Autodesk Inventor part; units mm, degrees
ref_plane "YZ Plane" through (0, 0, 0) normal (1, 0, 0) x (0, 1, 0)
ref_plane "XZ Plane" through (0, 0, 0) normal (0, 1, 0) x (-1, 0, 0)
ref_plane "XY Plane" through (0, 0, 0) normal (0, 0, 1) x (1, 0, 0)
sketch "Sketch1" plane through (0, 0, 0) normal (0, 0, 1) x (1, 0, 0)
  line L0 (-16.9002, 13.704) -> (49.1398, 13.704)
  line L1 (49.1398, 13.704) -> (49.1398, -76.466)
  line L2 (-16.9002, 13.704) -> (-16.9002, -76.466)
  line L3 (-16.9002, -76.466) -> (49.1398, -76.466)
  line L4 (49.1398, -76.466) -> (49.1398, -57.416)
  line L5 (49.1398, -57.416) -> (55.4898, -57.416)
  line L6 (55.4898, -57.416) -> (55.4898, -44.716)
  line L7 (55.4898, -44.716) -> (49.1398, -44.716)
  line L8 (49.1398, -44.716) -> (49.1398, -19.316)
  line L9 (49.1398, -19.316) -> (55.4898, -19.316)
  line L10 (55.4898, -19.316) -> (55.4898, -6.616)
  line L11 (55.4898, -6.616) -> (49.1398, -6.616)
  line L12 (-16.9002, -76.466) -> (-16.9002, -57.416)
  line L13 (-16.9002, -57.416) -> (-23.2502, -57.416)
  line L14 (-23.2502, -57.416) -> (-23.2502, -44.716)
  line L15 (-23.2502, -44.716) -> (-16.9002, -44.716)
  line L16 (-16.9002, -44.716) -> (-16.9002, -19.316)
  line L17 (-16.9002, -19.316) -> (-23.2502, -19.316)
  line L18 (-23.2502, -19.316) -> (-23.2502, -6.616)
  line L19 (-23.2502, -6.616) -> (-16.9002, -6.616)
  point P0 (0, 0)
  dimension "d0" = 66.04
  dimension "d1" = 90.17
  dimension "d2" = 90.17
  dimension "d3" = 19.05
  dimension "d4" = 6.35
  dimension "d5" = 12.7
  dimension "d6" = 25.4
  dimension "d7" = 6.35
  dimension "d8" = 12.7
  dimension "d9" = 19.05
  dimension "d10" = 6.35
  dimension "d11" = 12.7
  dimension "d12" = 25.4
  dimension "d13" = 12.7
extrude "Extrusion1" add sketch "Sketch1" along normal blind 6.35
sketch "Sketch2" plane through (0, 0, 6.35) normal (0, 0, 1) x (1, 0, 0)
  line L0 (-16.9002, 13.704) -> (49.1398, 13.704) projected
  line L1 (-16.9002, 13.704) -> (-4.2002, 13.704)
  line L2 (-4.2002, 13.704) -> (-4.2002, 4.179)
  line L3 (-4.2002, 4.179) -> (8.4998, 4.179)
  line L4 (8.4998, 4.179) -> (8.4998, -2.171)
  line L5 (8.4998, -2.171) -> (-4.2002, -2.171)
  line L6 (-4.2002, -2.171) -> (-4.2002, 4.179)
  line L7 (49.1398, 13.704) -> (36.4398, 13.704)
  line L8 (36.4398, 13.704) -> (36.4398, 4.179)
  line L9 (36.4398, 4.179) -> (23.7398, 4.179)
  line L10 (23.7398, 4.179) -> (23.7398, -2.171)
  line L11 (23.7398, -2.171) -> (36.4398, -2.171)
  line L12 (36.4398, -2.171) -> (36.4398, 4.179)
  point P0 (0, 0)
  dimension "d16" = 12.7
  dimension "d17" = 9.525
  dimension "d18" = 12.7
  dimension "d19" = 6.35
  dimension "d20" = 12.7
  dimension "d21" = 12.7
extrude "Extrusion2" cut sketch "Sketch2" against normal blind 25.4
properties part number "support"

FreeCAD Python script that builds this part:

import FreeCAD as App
import Part
import Sketcher
from FreeCAD import Vector
Q = App.Units.Quantity

doc = App.newDocument("Part")
body = doc.addObject("PartDesign::Body", "Body")

# Sketch on XY plane
sketch1 = doc.addObject("Sketcher::SketchObject", "Sketch")
body.addObject(sketch1)
sketch1.AttachmentSupport = (doc.XY_Plane, [""])
sketch1.MapMode = "FlatFace"
sketch1.addGeometry([
    Part.LineSegment(Vector(49.1398, 13.704, 0), Vector(-16.9002, 13.704, 0)),  # 0
    Part.LineSegment(Vector(-16.9002, 13.704, 0), Vector(-16.9002, -6.616, 0)),  # 1
    Part.LineSegment(Vector(-16.9002, -6.616, 0), Vector(-23.2502, -6.616, 0)),  # 2
    Part.LineSegment(Vector(-23.2502, -6.616, 0), Vector(-23.2502, -19.316, 0)),  # 3
    Part.LineSegment(Vector(-23.2502, -19.316, 0), Vector(-16.9002, -19.316, 0)),  # 4
    Part.LineSegment(Vector(-16.9002, -19.316, 0), Vector(-16.9002, -44.716, 0)),  # 5
    Part.LineSegment(Vector(-16.9002, -44.716, 0), Vector(-23.2502, -44.716, 0)),  # 6
    Part.LineSegment(Vector(-23.2502, -44.716, 0), Vector(-23.2502, -57.416, 0)),  # 7
    Part.LineSegment(Vector(-23.2502, -57.416, 0), Vector(-16.9002, -57.416, 0)),  # 8
    Part.LineSegment(Vector(-16.9002, -57.416, 0), Vector(-16.9002, -76.466, 0)),  # 9
    Part.LineSegment(Vector(-16.9002, -76.466, 0), Vector(49.1398, -76.466, 0)),  # 10
    Part.LineSegment(Vector(49.1398, -76.466, 0), Vector(49.1398, -57.416, 0)),  # 11
    Part.LineSegment(Vector(49.1398, -57.416, 0), Vector(55.4898, -57.416, 0)),  # 12
    Part.LineSegment(Vector(55.4898, -57.416, 0), Vector(55.4898, -44.716, 0)),  # 13
    Part.LineSegment(Vector(55.4898, -44.716, 0), Vector(49.1398, -44.716, 0)),  # 14
    Part.LineSegment(Vector(49.1398, -44.716, 0), Vector(49.1398, -19.316, 0)),  # 15
    Part.LineSegment(Vector(49.1398, -19.316, 0), Vector(55.4898, -19.316, 0)),  # 16
    Part.LineSegment(Vector(55.4898, -19.316, 0), Vector(55.4898, -6.616, 0)),  # 17
    Part.LineSegment(Vector(55.4898, -6.616, 0), Vector(49.1398, -6.616, 0)),  # 18
    Part.LineSegment(Vector(49.1398, -6.616, 0), Vector(49.1398, 13.704, 0)),  # 19
], False)
sketch1.addConstraint([
    Sketcher.Constraint("Coincident", 0, 2, 1, 1),
    Sketcher.Constraint("Coincident", 1, 2, 2, 1),
    Sketcher.Constraint("Coincident", 2, 2, 3, 1),
    Sketcher.Constraint("Coincident", 3, 2, 4, 1),
    Sketcher.Constraint("Coincident", 4, 2, 5, 1),
    Sketcher.Constraint("Coincident", 5, 2, 6, 1),
    Sketcher.Constraint("Coincident", 6, 2, 7, 1),
    Sketcher.Constraint("Coincident", 7, 2, 8, 1),
    Sketcher.Constraint("Coincident", 8, 2, 9, 1),
    Sketcher.Constraint("Coincident", 9, 2, 10, 1),
    Sketcher.Constraint("Coincident", 10, 2, 11, 1),
    Sketcher.Constraint("Coincident", 11, 2, 12, 1),
    Sketcher.Constraint("Coincident", 12, 2, 13, 1),
    Sketcher.Constraint("Coincident", 13, 2, 14, 1),
    Sketcher.Constraint("Coincident", 14, 2, 15, 1),
    Sketcher.Constraint("Coincident", 15, 2, 16, 1),
    Sketcher.Constraint("Coincident", 16, 2, 17, 1),
    Sketcher.Constraint("Coincident", 17, 2, 18, 1),
    Sketcher.Constraint("Coincident", 18, 2, 19, 1),
    Sketcher.Constraint("Coincident", 19, 2, 0, 1),
    Sketcher.Constraint("Horizontal", 0),
    Sketcher.Constraint("Vertical", 1),
    Sketcher.Constraint("Horizontal", 2),
    Sketcher.Constraint("Vertical", 3),
    Sketcher.Constraint("Horizontal", 4),
    Sketcher.Constraint("Vertical", 5),
    Sketcher.Constraint("Horizontal", 6),
    Sketcher.Constraint("Vertical", 7),
    Sketcher.Constraint("Horizontal", 8),
    Sketcher.Constraint("Vertical", 9),
    Sketcher.Constraint("Horizontal", 10),
    Sketcher.Constraint("Vertical", 11),
    Sketcher.Constraint("Horizontal", 12),
    Sketcher.Constraint("Vertical", 13),
    Sketcher.Constraint("Horizontal", 14),
    Sketcher.Constraint("Vertical", 15),
    Sketcher.Constraint("Horizontal", 16),
    Sketcher.Constraint("Vertical", 17),
    Sketcher.Constraint("Horizontal", 18),
    Sketcher.Constraint("Vertical", 19),
    Sketcher.Constraint("Horizontal", 8, 2, 11, 2),
    Sketcher.Constraint("Horizontal", 6, 2, 13, 2),
    Sketcher.Constraint("Horizontal", 4, 2, 15, 2),
    Sketcher.Constraint("Horizontal", 2, 2, 17, 2),
    Sketcher.Constraint("Vertical", 1, 2, 4, 2),
    Sketcher.Constraint("Vertical", 3, 2, 6, 2),
    Sketcher.Constraint("Vertical", 5, 2, 8, 2),
    Sketcher.Constraint("Vertical", 11, 2, 14, 2),
    Sketcher.Constraint("Vertical", 13, 2, 16, 2),
    Sketcher.Constraint("Vertical", 15, 2, 18, 2),
    Sketcher.Constraint("Equal", 8, 12),
    Sketcher.Constraint("Equal", 3, 7),
    Sketcher.Constraint("DistanceY", 5, 2, 5, 1, Q("1 in")),
    Sketcher.Constraint("DistanceX", 0, 2, 0, 1, Q("2.6 in")),
    Sketcher.Constraint("DistanceY", 3, 2, 3, 1, Q("0.5 in")),
    Sketcher.Constraint("DistanceX", 2, 2, 2, 1, Q("0.25 in")),
    Sketcher.Constraint("DistanceY", 9, 2, 9, 1, Q("0.75 in")),
    Sketcher.Constraint("DistanceY", 1, 2, 1, 1, Q("0.8 in")),
    Sketcher.Constraint("DistanceX", 0, 2, -1, 1, Q("16.9002 mm")),
    Sketcher.Constraint("DistanceY", -1, 1, 0, 2, Q("13.704 mm")),
])
pad1 = doc.addObject("PartDesign::Pad", "Pad")
body.addObject(pad1)
pad1.Profile = sketch1
pad1.Length = Q("0.25 in")

# Sketch on XY plane
sketch2 = doc.addObject("Sketcher::SketchObject", "Sketch001")
body.addObject(sketch2)
sketch2.AttachmentSupport = (doc.XY_Plane, [""])
sketch2.MapMode = "FlatFace"
sketch2.AttachmentOffset = App.Placement(Vector(0, 0, 0.25 * 25.4), App.Rotation())
sketch2.addGeometry([
    Part.LineSegment(Vector(36.4398, -2.171, 0), Vector(36.4398, 4.179, 0)),  # 0
    Part.LineSegment(Vector(36.4398, 4.179, 0), Vector(23.7398, 4.179, 0)),  # 1
    Part.LineSegment(Vector(23.7398, 4.179, 0), Vector(23.7398, -2.171, 0)),  # 2
    Part.LineSegment(Vector(23.7398, -2.171, 0), Vector(36.4398, -2.171, 0)),  # 3
    Part.LineSegment(Vector(8.4998, 4.179, 0), Vector(-4.2002, 4.179, 0)),  # 4
    Part.LineSegment(Vector(-4.2002, 4.179, 0), Vector(-4.2002, -2.171, 0)),  # 5
    Part.LineSegment(Vector(-4.2002, -2.171, 0), Vector(8.4998, -2.171, 0)),  # 6
    Part.LineSegment(Vector(8.4998, -2.171, 0), Vector(8.4998, 4.179, 0)),  # 7
], False)
sketch2.addConstraint([
    Sketcher.Constraint("Coincident", 0, 2, 1, 1),
    Sketcher.Constraint("Coincident", 1, 2, 2, 1),
    Sketcher.Constraint("Coincident", 2, 2, 3, 1),
    Sketcher.Constraint("Coincident", 3, 2, 0, 1),
    Sketcher.Constraint("Coincident", 4, 2, 5, 1),
    Sketcher.Constraint("Coincident", 5, 2, 6, 1),
    Sketcher.Constraint("Coincident", 6, 2, 7, 1),
    Sketcher.Constraint("Coincident", 7, 2, 4, 1),
    Sketcher.Constraint("Vertical", 0),
    Sketcher.Constraint("Horizontal", 1),
    Sketcher.Constraint("Vertical", 2),
    Sketcher.Constraint("Horizontal", 3),
    Sketcher.Constraint("Horizontal", 4),
    Sketcher.Constraint("Vertical", 5),
    Sketcher.Constraint("Horizontal", 6),
    Sketcher.Constraint("Vertical", 7),
    Sketcher.Constraint("Horizontal", 1, 2, 4, 2),
    Sketcher.Constraint("Horizontal", 3, 2, 5, 2),
    Sketcher.Constraint("Equal", 3, 4),
    Sketcher.Constraint("DistanceX", 1, 2, 1, 1, Q("0.5 in")),
    Sketcher.Constraint("DistanceY", 0, 1, 0, 2, Q("0.25 in")),
    Sketcher.Constraint("DistanceX", 4, 2, 1, 2, Q("1.1 in")),
    Sketcher.Constraint("DistanceX", -1, 1, 0, 2, Q("36.4398 mm")),
    Sketcher.Constraint("DistanceY", -1, 1, 0, 2, Q("4.179 mm")),
])
pocket1 = doc.addObject("PartDesign::Pocket", "Pocket")
body.addObject(pocket1)
pocket1.Profile = sketch2
pocket1.Length = Q("1 in")

doc.recompute()
